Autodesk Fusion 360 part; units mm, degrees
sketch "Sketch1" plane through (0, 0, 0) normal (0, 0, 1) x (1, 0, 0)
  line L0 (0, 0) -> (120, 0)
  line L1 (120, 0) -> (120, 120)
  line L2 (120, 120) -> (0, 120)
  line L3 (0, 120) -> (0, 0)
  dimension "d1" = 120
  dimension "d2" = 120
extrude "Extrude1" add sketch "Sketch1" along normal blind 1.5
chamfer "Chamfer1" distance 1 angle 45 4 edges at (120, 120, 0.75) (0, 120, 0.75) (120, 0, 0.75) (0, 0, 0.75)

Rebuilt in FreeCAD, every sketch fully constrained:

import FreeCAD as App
import Part
import Sketcher
Q = App.Units.Quantity


def edges_at(feature, points):
    """Names of the edges that pass closest to the given points."""
    edges = feature.Shape.Edges
    near = lambda p: min(range(len(edges)), key=lambda i: edges[i].distToShape(Part.Vertex(*p))[0])
    return sorted({f"Edge{near(p) + 1}" for p in points})


def add_polygon(sketch, points):
    """Adds a closed chain of lines whose ends are joined by coincident constraints."""
    first, n = sketch.GeometryCount, len(points)
    for a, b in zip(points, points[1:] + points[:1]):
        sketch.addGeometry(Part.LineSegment(App.Vector(*a, 0), App.Vector(*b, 0)), False)
    for i in range(n):
        sketch.addConstraint(Sketcher.Constraint("Coincident", first + i, 2, first + (i + 1) % n, 1))

doc = App.newDocument("Part")
body = doc.addObject("PartDesign::Body", "Body")

# Sketch on XY plane
sketch1 = doc.addObject("Sketcher::SketchObject", "Sketch")
body.addObject(sketch1)
sketch1.AttachmentSupport = (doc.XY_Plane, [""])
sketch1.MapMode = "FlatFace"
add_polygon(sketch1, [(0, 120), (0, 0), (120, 0), (120, 120)])  # lines 0-3
sketch1.addConstraint([
    Sketcher.Constraint("Vertical", 0),
    Sketcher.Constraint("Horizontal", 1),
    Sketcher.Constraint("Vertical", 2),
    Sketcher.Constraint("Horizontal", 3),
    Sketcher.Constraint("Coincident", 0, 2, -1, 1),
    Sketcher.Constraint("Equal", 3, 0),
    Sketcher.Constraint("DistanceX", 1, 1, 1, 2, Q("120 mm")),
])
pad1 = doc.addObject("PartDesign::Pad", "Pad")
body.addObject(pad1)
pad1.Profile = sketch1
pad1.Length = 1.5
doc.recompute()

chamfer = doc.addObject("PartDesign::Chamfer", "Chamfer")
body.addObject(chamfer)
chamfer.Base = (pad1, edges_at(pad1, [
    (120, 120, 0.75),
    (0, 120, 0.75),
    (120, 0, 0.75),
    (0, 0, 0.75),
]))
chamfer.Size = 1

doc.recompute()
